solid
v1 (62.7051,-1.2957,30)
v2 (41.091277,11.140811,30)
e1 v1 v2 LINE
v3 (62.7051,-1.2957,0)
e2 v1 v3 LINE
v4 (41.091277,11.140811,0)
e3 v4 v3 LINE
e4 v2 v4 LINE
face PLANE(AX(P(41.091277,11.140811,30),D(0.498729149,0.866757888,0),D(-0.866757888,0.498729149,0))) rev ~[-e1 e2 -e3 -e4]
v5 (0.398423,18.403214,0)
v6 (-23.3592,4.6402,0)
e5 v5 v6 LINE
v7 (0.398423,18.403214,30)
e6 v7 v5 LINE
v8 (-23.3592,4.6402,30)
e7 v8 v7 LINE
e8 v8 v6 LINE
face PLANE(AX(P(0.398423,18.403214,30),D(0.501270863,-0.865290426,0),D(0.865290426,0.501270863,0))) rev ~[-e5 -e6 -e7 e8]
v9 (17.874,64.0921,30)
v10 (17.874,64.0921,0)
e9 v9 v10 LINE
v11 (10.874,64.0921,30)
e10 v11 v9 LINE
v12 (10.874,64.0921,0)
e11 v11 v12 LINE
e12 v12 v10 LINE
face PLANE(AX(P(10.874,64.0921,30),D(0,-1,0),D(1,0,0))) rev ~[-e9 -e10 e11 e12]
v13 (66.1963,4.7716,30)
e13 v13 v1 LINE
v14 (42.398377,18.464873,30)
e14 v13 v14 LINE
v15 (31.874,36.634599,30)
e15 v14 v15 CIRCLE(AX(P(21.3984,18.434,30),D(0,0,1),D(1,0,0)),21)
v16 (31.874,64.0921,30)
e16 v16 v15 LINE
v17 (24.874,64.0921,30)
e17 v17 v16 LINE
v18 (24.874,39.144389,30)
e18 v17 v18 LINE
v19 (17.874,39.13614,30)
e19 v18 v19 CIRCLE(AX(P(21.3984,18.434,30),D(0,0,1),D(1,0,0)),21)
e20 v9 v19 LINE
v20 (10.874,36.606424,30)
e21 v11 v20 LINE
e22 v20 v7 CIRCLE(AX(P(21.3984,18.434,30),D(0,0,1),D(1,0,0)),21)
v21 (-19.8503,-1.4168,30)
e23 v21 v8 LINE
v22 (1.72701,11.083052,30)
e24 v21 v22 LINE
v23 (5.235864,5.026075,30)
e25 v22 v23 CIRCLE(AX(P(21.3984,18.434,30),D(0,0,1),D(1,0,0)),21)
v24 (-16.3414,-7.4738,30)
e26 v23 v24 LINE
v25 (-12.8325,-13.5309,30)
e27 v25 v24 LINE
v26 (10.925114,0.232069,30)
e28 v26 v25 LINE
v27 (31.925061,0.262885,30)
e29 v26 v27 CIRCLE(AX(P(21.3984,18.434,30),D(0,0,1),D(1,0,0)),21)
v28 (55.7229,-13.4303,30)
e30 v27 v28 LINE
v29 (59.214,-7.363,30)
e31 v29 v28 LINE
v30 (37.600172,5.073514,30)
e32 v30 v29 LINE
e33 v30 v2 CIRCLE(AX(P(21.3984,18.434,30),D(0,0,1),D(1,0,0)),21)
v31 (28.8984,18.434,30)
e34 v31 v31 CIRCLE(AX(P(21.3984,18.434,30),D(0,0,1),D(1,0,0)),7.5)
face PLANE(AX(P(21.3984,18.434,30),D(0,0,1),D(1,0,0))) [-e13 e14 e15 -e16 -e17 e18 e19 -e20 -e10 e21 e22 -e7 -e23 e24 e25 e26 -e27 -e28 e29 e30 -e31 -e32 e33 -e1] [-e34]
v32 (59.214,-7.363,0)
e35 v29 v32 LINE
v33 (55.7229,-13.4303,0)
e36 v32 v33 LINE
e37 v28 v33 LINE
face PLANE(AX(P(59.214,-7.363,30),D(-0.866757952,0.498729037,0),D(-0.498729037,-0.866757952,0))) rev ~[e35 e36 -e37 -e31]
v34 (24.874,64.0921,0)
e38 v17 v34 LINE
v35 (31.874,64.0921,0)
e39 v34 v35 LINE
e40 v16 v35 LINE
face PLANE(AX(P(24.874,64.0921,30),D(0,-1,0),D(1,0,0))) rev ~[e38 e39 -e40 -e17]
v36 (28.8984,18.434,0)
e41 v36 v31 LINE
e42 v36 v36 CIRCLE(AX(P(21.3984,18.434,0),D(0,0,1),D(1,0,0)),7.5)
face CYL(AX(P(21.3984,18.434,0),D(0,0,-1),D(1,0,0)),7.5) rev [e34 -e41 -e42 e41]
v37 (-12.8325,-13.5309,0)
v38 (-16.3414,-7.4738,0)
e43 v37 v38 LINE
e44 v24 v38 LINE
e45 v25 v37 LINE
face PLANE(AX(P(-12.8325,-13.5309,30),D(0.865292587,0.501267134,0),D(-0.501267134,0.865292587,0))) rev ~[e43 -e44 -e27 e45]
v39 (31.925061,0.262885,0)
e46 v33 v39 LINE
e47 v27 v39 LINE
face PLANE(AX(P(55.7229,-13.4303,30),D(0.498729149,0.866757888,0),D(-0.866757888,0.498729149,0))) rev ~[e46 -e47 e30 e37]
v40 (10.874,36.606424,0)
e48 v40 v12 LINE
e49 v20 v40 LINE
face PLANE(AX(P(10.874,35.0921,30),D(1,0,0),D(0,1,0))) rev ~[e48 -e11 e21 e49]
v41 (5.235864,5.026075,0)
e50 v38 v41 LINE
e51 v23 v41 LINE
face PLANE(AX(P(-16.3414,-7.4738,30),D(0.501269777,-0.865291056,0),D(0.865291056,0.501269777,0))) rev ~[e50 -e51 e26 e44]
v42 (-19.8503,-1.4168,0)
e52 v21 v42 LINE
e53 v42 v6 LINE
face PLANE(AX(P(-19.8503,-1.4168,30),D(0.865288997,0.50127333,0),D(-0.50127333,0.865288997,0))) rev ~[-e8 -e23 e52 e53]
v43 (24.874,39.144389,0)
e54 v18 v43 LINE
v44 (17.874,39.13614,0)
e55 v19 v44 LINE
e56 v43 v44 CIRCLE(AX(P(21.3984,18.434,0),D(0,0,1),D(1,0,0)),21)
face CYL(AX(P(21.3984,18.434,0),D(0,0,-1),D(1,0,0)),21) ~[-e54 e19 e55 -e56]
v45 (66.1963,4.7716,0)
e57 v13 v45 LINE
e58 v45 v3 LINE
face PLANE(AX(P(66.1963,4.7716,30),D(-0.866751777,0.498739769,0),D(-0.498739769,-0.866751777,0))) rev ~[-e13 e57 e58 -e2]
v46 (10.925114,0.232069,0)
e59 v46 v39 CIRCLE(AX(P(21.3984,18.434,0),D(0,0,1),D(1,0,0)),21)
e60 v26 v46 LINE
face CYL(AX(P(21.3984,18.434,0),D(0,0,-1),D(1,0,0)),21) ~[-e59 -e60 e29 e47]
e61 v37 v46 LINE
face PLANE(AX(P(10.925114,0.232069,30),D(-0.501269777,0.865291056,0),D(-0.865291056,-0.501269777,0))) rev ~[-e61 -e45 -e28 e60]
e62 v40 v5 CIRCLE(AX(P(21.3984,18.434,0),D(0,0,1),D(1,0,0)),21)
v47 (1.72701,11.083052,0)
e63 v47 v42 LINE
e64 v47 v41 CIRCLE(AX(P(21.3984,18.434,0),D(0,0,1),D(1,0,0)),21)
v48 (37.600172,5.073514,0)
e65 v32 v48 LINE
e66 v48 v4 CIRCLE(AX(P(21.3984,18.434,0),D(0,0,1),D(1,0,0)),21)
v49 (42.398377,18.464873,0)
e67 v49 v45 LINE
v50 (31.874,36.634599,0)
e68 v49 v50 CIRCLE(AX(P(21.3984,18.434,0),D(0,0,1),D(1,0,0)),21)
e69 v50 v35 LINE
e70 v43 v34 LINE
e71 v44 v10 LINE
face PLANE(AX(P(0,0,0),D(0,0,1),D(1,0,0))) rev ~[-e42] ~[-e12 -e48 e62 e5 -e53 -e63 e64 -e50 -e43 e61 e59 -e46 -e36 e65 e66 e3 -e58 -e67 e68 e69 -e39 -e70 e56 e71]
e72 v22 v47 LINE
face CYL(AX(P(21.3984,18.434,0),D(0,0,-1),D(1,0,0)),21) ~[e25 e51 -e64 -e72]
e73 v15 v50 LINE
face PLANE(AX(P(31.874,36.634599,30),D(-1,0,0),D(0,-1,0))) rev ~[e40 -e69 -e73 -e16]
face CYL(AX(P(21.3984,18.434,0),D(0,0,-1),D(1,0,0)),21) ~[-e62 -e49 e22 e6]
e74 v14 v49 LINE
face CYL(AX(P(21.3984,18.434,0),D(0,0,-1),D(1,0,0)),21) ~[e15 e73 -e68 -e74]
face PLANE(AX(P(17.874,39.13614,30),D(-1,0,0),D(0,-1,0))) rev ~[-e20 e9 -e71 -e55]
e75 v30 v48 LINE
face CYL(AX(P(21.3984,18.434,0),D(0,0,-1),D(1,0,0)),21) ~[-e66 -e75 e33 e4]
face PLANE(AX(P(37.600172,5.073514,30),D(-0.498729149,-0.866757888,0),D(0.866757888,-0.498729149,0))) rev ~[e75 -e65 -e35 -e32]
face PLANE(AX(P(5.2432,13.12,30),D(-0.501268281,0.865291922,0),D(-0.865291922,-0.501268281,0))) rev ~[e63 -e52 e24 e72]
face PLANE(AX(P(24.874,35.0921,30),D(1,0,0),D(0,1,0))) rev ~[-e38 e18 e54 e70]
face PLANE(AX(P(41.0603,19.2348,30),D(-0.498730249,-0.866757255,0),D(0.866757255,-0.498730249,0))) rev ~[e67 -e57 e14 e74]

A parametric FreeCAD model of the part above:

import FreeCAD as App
import Part
import Sketcher

V = App.Vector
Q = App.Units.Quantity


def add_polygon(sketch, points):
    """Adds a closed chain of lines whose ends are joined by coincident constraints."""
    first, n = sketch.GeometryCount, len(points)
    for a, b in zip(points, points[1:] + points[:1]):
        sketch.addGeometry(Part.LineSegment(App.Vector(*a, 0), App.Vector(*b, 0)), False)
    for i in range(n):
        sketch.addConstraint(Sketcher.Constraint("Coincident", first + i, 2, first + (i + 1) % n, 1))

doc = App.newDocument("Part")
body = doc.addObject("PartDesign::Body", "Body")

# Sketch on XY plane
sketch1 = body.newObject("Sketcher::SketchObject", "Sketch")
sketch1.AttachmentSupport = (doc.getObject("XY_Plane"), [""])
sketch1.MapMode = "FlatFace"
sketch1.addGeometry([
    Part.Circle(V(21, 18, 0), V(0, 0, 1), 21),
    Part.Circle(V(21, 18, 0), V(0, 0, 1), 8),
], False)
sketch1.addConstraint([
    Sketcher.Constraint("Coincident", 1, 3, 0, 3),
    Sketcher.Constraint("Diameter", 0, Q("42 mm")),
    Sketcher.Constraint("Diameter", 1, Q("15 mm")),
    Sketcher.Constraint("DistanceY", -1, 1, 0, 3, Q("18.434 mm")),
    Sketcher.Constraint("DistanceX", -1, 1, 0, 3, Q("21.3984 mm")),
])
pad1 = body.newObject("PartDesign::Pad", "Pad")
pad1.Profile = sketch1
pad1.Length = 30

# Sketch on XY plane
sketch2 = body.newObject("Sketcher::SketchObject", "Sketch001")
sketch2.AttachmentSupport = (doc.getObject("XY_Plane"), [""])
sketch2.MapMode = "FlatFace"
sketch2.AttachmentOffset = App.Placement(V(0, 0, 30), App.Rotation())
add_polygon(sketch2, [(38, 13), (63, -1), (66, 5), (41, 19)])  # lines 0-3
add_polygon(sketch2, [(32, 35), (32, 64), (25, 64), (25, 35)])  # lines 4-7
add_polygon(sketch2, [(59, -7), (34, 7), (31, 1), (56, -13)])  # lines 8-11
add_polygon(sketch2, [(18, 35), (18, 64), (11, 64), (11, 35)])  # lines 12-15
add_polygon(sketch2, [(-13, -14), (12, 1), (9, 7), (-16, -7)])  # lines 16-19
add_polygon(sketch2, [(2, 19), (-23, 5), (-20, -1), (5, 13)])  # lines 20-23
sketch2.addConstraint([
    Sketcher.Constraint("Vertical", 4),
    Sketcher.Constraint("Horizontal", 5),
    Sketcher.Constraint("Vertical", 6),
    Sketcher.Constraint("Horizontal", 7),
    Sketcher.Constraint("Vertical", 12),
    Sketcher.Constraint("Horizontal", 13),
    Sketcher.Constraint("Vertical", 14),
    Sketcher.Constraint("Horizontal", 15),
    Sketcher.Constraint("Perpendicular", 0, 1),
    Sketcher.Constraint("Perpendicular", 1, 2),
    Sketcher.Constraint("Perpendicular", 2, 3),
    Sketcher.Constraint("Perpendicular", 3, 8),
    Sketcher.Constraint("Perpendicular", 8, 9),
    Sketcher.Constraint("Perpendicular", 9, 10),
    Sketcher.Constraint("Perpendicular", 10, 11),
    Sketcher.Constraint("Perpendicular", 16, 17),
    Sketcher.Constraint("Perpendicular", 17, 18),
    Sketcher.Constraint("Perpendicular", 18, 19),
    Sketcher.Constraint("Perpendicular", 19, 20),
    Sketcher.Constraint("Perpendicular", 20, 21),
    Sketcher.Constraint("Perpendicular", 21, 22),
    Sketcher.Constraint("Perpendicular", 22, 23),
    Sketcher.Constraint("Horizontal", 5, 2, 12, 2),
    Sketcher.Constraint("Horizontal", 7, 2, 14, 2),
    Sketcher.Constraint("Equal", 7, 13),
    Sketcher.Constraint("Equal", 2, 8),
    Sketcher.Constraint("Equal", 3, 9),
    Sketcher.Constraint("Equal", 10, 16),
    Sketcher.Constraint("Equal", 11, 17),
    Sketcher.Constraint("Equal", 18, 20),
    Sketcher.Constraint("Equal", 19, 21),
    Sketcher.Constraint("DistanceX", 5, 2, 5, 1, Q("7 mm")),
    Sketcher.Constraint("DistanceY", 4, 1, 4, 2, Q("29 mm")),
    Sketcher.Constraint("Distance", 0, Q("29 mm")),
    Sketcher.Constraint("Distance", 1, Q("7 mm")),
    Sketcher.Constraint("DistanceX", 12, 2, 5, 2, Q("7 mm")),
    Sketcher.Constraint("DistanceY", -1, 1, 8, 2, Q("7.1 mm")),
    Sketcher.Constraint("DistanceX", 4, 2, 1, 2, Q("34.3223 mm")),
    Sketcher.Constraint("DistanceY", 1, 2, 4, 2, Q("59.3205 mm")),
    Sketcher.Constraint("DistanceY", -1, 1, 22, 2, Q("13.12 mm")),
    Sketcher.Constraint("DistanceX", 20, 2, 16, 2, Q("35.62 mm")),
    Sketcher.Constraint("DistanceX", -1, 1, 0, 2, Q("62.705 mm")),
    Sketcher.Constraint("DistanceX", -1, 1, 4, 2, Q("31.874 mm")),
    Sketcher.Constraint("DistanceY", -1, 1, 4, 2, Q("64.092 mm")),
    Sketcher.Constraint("DistanceX", -1, 1, 8, 2, Q("34.078 mm")),
    Sketcher.Constraint("DistanceX", -1, 1, 16, 2, Q("12.261 mm")),
    Sketcher.Constraint("DistanceY", -1, 1, 16, 2, Q("1.006 mm")),
    Sketcher.Constraint("DistanceX", -1, 1, 17, 2, Q("8.752 mm")),
])
pad2 = body.newObject("PartDesign::Pad", "Pad001")
pad2.Profile = sketch2
pad2.Length = 30
pad2.Reversed = True

doc.recompute()
